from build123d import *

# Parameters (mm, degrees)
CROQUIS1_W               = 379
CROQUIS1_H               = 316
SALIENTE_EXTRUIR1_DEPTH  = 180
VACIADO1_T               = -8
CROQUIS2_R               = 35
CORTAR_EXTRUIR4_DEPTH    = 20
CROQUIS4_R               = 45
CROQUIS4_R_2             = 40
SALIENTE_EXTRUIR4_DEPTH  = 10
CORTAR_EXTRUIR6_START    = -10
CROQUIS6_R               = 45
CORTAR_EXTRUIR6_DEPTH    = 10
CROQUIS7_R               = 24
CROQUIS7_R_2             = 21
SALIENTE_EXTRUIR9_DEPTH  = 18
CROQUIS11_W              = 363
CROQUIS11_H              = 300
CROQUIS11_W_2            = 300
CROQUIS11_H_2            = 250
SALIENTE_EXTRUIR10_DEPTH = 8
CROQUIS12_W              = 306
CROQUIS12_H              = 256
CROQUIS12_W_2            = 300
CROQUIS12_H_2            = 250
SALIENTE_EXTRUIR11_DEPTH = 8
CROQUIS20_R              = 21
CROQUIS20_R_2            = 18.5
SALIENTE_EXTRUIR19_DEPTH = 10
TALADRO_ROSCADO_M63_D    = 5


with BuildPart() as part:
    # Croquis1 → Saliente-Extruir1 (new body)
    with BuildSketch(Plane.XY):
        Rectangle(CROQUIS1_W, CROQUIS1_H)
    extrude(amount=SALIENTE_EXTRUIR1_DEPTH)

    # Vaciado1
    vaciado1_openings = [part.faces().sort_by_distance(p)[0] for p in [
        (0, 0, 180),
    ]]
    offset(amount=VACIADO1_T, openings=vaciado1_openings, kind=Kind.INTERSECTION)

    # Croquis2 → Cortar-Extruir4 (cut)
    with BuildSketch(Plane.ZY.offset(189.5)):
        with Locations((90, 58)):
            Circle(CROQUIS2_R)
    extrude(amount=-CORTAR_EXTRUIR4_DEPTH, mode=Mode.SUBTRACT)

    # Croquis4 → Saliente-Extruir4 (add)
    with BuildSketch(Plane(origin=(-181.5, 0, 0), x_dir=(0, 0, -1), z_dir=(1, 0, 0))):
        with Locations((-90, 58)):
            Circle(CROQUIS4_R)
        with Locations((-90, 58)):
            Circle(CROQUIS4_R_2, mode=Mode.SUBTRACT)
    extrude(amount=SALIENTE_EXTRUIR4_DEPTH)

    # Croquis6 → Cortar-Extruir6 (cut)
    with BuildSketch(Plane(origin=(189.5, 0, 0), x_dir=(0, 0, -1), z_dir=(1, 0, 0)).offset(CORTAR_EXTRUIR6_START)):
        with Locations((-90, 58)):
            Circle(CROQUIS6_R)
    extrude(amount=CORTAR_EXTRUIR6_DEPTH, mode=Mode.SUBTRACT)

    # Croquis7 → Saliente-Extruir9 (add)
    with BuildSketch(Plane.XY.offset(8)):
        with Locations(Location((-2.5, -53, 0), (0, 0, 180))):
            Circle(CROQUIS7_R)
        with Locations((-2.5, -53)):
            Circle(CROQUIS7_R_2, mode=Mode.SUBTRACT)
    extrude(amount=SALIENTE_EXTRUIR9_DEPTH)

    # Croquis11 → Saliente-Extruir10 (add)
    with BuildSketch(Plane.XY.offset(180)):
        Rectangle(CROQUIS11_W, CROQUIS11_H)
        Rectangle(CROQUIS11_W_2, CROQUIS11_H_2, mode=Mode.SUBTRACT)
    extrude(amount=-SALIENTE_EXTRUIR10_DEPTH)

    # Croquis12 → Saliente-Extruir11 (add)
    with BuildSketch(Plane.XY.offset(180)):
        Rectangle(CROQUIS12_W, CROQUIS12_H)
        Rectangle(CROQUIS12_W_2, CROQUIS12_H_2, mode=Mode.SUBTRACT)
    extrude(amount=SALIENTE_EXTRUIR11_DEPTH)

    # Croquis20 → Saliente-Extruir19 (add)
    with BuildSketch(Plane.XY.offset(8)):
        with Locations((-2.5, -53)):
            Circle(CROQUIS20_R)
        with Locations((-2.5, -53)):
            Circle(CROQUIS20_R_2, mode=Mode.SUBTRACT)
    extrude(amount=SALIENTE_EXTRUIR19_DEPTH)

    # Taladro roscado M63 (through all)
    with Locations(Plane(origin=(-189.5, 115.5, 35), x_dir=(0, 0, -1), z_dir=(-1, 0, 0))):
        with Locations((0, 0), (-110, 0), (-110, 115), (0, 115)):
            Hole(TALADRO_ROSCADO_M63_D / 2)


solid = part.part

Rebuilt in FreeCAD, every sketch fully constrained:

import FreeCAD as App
import Part
import Sketcher

V = App.Vector


def faces_at(feature, points):
    """Names of the faces that lie closest to the given points."""
    faces = feature.Shape.Faces
    near = lambda p: min(range(len(faces)), key=lambda i: faces[i].distToShape(Part.Vertex(*p))[0])
    return sorted({f"Face{near(p) + 1}" for p in points})


def add_polygon(sketch, points):
    """Adds a closed chain of lines whose ends are joined by coincident constraints."""
    first, n = sketch.GeometryCount, len(points)
    for a, b in zip(points, points[1:] + points[:1]):
        sketch.addGeometry(Part.LineSegment(App.Vector(*a, 0), App.Vector(*b, 0)), False)
    for i in range(n):
        sketch.addConstraint(Sketcher.Constraint("Coincident", first + i, 2, first + (i + 1) % n, 1))

doc = App.newDocument("Part")
body = doc.addObject("PartDesign::Body", "Body")

# Sketch on XY plane
sketch1 = body.newObject("Sketcher::SketchObject", "Sketch")
sketch1.AttachmentSupport = (doc.getObject("XY_Plane"), [""])
sketch1.MapMode = "FlatFace"
add_polygon(sketch1, [(-190, 158), (-190, -158), (190, -158), (190, 158)])  # lines 0-3
sketch1.addConstraint([
    Sketcher.Constraint("Vertical", 0),
    Sketcher.Constraint("Horizontal", 1),
    Sketcher.Constraint("Vertical", 2),
    Sketcher.Constraint("Horizontal", 3),
    Sketcher.Constraint("Symmetric", 0, 2, 2, 2, -1, 1),
    Sketcher.Constraint("DistanceX", 1, 1, 1, 2, 379.0),
    Sketcher.Constraint("DistanceY", 0, 2, 0, 1, 316.0),
])
pad1 = body.newObject("PartDesign::Pad", "Pad")
pad1.Profile = sketch1
pad1.Length = 180
doc.recompute()

thickness = body.newObject("PartDesign::Thickness", "Thickness")
thickness.Base = (pad1, faces_at(pad1, [(0, 0, 180)]))
thickness.Value = 8
thickness.Reversed = True
thickness.Join = "Intersection"

# Sketch on YZ plane
sketch2 = body.newObject("Sketcher::SketchObject", "Sketch001")
sketch2.AttachmentSupport = (doc.getObject("YZ_Plane"), [""])
sketch2.MapMode = "FlatFace"
sketch2.AttachmentOffset = App.Placement(V(0, 0, -189.5), App.Rotation())
sketch2.addGeometry(Part.Circle(V(58, 90, 0), V(0, 0, 1), 35), False)
sketch2.addConstraint([
    Sketcher.Constraint("Diameter", 0, 70.0),
    Sketcher.Constraint("DistanceX", -1, 1, 0, 3, 58.0),
    Sketcher.Constraint("DistanceY", -1, 1, 0, 3, 90.0),
])
pocket1 = body.newObject("PartDesign::Pocket", "Pocket")
pocket1.Profile = sketch2
pocket1.Length = 20
pocket1.Reversed = True

# Sketch on YZ plane
sketch3 = body.newObject("Sketcher::SketchObject", "Sketch002")
sketch3.AttachmentSupport = (doc.getObject("YZ_Plane"), [""])
sketch3.MapMode = "FlatFace"
sketch3.AttachmentOffset = App.Placement(V(0, 0, -181.5), App.Rotation())
sketch3.addGeometry([
    Part.Circle(V(58, 90, 0), V(0, 0, 1), 45),
    Part.Circle(V(58, 90, 0), V(0, 0, 1), 40),
], False)
sketch3.addConstraint([
    Sketcher.Constraint("Coincident", 1, 3, 0, 3),
    Sketcher.Constraint("Diameter", 0, 90.0),
    Sketcher.Constraint("Diameter", 1, 80.0),
    Sketcher.Constraint("DistanceX", -1, 1, 0, 3, 58.0),
    Sketcher.Constraint("DistanceY", -1, 1, 0, 3, 90.0),
])
pad2 = body.newObject("PartDesign::Pad", "Pad001")
pad2.Profile = sketch3
pad2.Length = 10

# Sketch on YZ plane
sketch4 = body.newObject("Sketcher::SketchObject", "Sketch003")
sketch4.AttachmentSupport = (doc.getObject("YZ_Plane"), [""])
sketch4.MapMode = "FlatFace"
sketch4.AttachmentOffset = App.Placement(V(0, 0, 179.5), App.Rotation())
sketch4.addGeometry(Part.Circle(V(58, 90, 0), V(0, 0, 1), 45), False)
sketch4.addConstraint([
    Sketcher.Constraint("Diameter", 0, 90.0),
    Sketcher.Constraint("DistanceX", -1, 1, 0, 3, 58.0),
    Sketcher.Constraint("DistanceY", -1, 1, 0, 3, 90.0),
])
pocket2 = body.newObject("PartDesign::Pocket", "Pocket001")
pocket2.Profile = sketch4
pocket2.Length = 10
pocket2.Reversed = True

# Sketch on XY plane
sketch5 = body.newObject("Sketcher::SketchObject", "Sketch004")
sketch5.AttachmentSupport = (doc.getObject("XY_Plane"), [""])
sketch5.MapMode = "FlatFace"
sketch5.AttachmentOffset = App.Placement(V(0, 0, 8), App.Rotation())
sketch5.addGeometry([
    Part.Circle(V(-2, -53, 0), V(0, 0, 1), 24),
    Part.Circle(V(-2, -53, 0), V(0, 0, 1), 21),
], False)
sketch5.addConstraint([
    Sketcher.Constraint("Coincident", 1, 3, 0, 3),
    Sketcher.Constraint("Diameter", 0, 48.0),
    Sketcher.Constraint("Diameter", 1, 42.0),
    Sketcher.Constraint("DistanceY", 0, 3, -1, 1, 53.0),
    Sketcher.Constraint("DistanceX", 0, 3, -1, 1, 2.5),
])
pad3 = body.newObject("PartDesign::Pad", "Pad002")
pad3.Profile = sketch5
pad3.Length = 18

# Sketch on XY plane
sketch6 = body.newObject("Sketcher::SketchObject", "Sketch005")
sketch6.AttachmentSupport = (doc.getObject("XY_Plane"), [""])
sketch6.MapMode = "FlatFace"
sketch6.AttachmentOffset = App.Placement(V(0, 0, 180), App.Rotation())
add_polygon(sketch6, [(-182, 150), (-182, -150), (182, -150), (182, 150)])  # lines 0-3
add_polygon(sketch6, [(150, -125), (-150, -125), (-150, 125), (150, 125)])  # lines 4-7
sketch6.addConstraint([
    Sketcher.Constraint("Vertical", 0),
    Sketcher.Constraint("Horizontal", 1),
    Sketcher.Constraint("Vertical", 2),
    Sketcher.Constraint("Horizontal", 3),
    Sketcher.Constraint("Horizontal", 4),
    Sketcher.Constraint("Vertical", 5),
    Sketcher.Constraint("Horizontal", 6),
    Sketcher.Constraint("Vertical", 7),
    Sketcher.Constraint("Symmetric", 0, 2, 2, 2, -1, 1),
    Sketcher.Constraint("Symmetric", 4, 2, 6, 2, -1, 1),
    Sketcher.Constraint("Equal", 6, 0),
    Sketcher.Constraint("DistanceX", 1, 1, 1, 2, 363.0),
    Sketcher.Constraint("DistanceX", 4, 2, 4, 1, 300.0),
    Sketcher.Constraint("DistanceY", 5, 1, 5, 2, 250.0),
])
pad4 = body.newObject("PartDesign::Pad", "Pad003")
pad4.Profile = sketch6
pad4.Length = 8
pad4.Reversed = True

# Sketch on XY plane
sketch7 = body.newObject("Sketcher::SketchObject", "Sketch006")
sketch7.AttachmentSupport = (doc.getObject("XY_Plane"), [""])
sketch7.MapMode = "FlatFace"
sketch7.AttachmentOffset = App.Placement(V(0, 0, 180), App.Rotation())
add_polygon(sketch7, [(-153, 128), (-153, -128), (153, -128), (153, 128)])  # lines 0-3
add_polygon(sketch7, [(150, -125), (-150, -125), (-150, 125), (150, 125)])  # lines 4-7
sketch7.addConstraint([
    Sketcher.Constraint("Vertical", 0),
    Sketcher.Constraint("Horizontal", 1),
    Sketcher.Constraint("Vertical", 2),
    Sketcher.Constraint("Horizontal", 3),
    Sketcher.Constraint("Horizontal", 4),
    Sketcher.Constraint("Vertical", 5),
    Sketcher.Constraint("Horizontal", 6),
    Sketcher.Constraint("Vertical", 7),
    Sketcher.Constraint("Symmetric", 0, 2, 2, 2, -1, 1),
    Sketcher.Constraint("Symmetric", 4, 2, 6, 2, -1, 1),
    Sketcher.Constraint("DistanceX", 1, 1, 1, 2, 306.0),
    Sketcher.Constraint("DistanceX", 4, 2, 4, 1, 300.0),
    Sketcher.Constraint("DistanceY", 0, 2, 0, 1, 256.0),
    Sketcher.Constraint("DistanceY", 5, 1, 5, 2, 250.0),
])
pad5 = body.newObject("PartDesign::Pad", "Pad004")
pad5.Profile = sketch7
pad5.Length = 8

# Sketch on XY plane
sketch8 = body.newObject("Sketcher::SketchObject", "Sketch007")
sketch8.AttachmentSupport = (doc.getObject("XY_Plane"), [""])
sketch8.MapMode = "FlatFace"
sketch8.AttachmentOffset = App.Placement(V(0, 0, 8), App.Rotation())
sketch8.addGeometry([
    Part.Circle(V(-2, -53, 0), V(0, 0, 1), 21),
    Part.Circle(V(-2, -53, 0), V(0, 0, 1), 18),
], False)
sketch8.addConstraint([
    Sketcher.Constraint("Coincident", 1, 3, 0, 3),
    Sketcher.Constraint("Diameter", 0, 42.0),
    Sketcher.Constraint("Diameter", 1, 37.0),
    Sketcher.Constraint("DistanceY", 0, 3, -1, 1, 53.0),
    Sketcher.Constraint("DistanceX", 0, 3, -1, 1, 2.5),
])
pad6 = body.newObject("PartDesign::Pad", "Pad005")
pad6.Profile = sketch8
pad6.Length = 10

# Sketch on YZ plane
sketch9 = body.newObject("Sketcher::SketchObject", "Sketch008")
sketch9.AttachmentSupport = (doc.getObject("YZ_Plane"), [""])
sketch9.MapMode = "FlatFace"
sketch9.AttachmentOffset = App.Placement(V(0, 0, -189.5), App.Rotation())
sketch9.addGeometry([
    Part.Circle(V(115.5, 35, 0), V(0, 0, 1), 2.5),
    Part.Circle(V(115.5, 145, 0), V(0, 0, 1), 2.5),
    Part.Circle(V(0.5, 145, 0), V(0, 0, 1), 2.5),
    Part.Circle(V(0.5, 35, 0), V(0, 0, 1), 2.5),
], False)
sketch9.addConstraint([
    Sketcher.Constraint("Equal", 0, 1),
    Sketcher.Constraint("Equal", 1, 2),
    Sketcher.Constraint("Equal", 2, 3),
    Sketcher.Constraint("Horizontal", 1, 3, 2, 3),
    Sketcher.Constraint("Horizontal", 0, 3, 3, 3),
    Sketcher.Constraint("Vertical", 0, 3, 1, 3),
    Sketcher.Constraint("Vertical", 2, 3, 3, 3),
    Sketcher.Constraint("Diameter", 0, 5.0),
    Sketcher.Constraint("DistanceY", -1, 1, 0, 3, 35.0),
    Sketcher.Constraint("DistanceY", -1, 1, 1, 3, 145.0),
    Sketcher.Constraint("DistanceX", 2, 3, 1, 3, 115.0),
    Sketcher.Constraint("DistanceX", -1, 1, 0, 3, 115.5),
])
doc.recompute()
hole = body.newObject("PartDesign::Hole", "Hole")
hole.Profile = sketch9
hole.ThreadType = "None"
hole.Diameter = 5
hole.DepthType = "ThroughAll"
hole.Reversed = True

doc.recompute()
